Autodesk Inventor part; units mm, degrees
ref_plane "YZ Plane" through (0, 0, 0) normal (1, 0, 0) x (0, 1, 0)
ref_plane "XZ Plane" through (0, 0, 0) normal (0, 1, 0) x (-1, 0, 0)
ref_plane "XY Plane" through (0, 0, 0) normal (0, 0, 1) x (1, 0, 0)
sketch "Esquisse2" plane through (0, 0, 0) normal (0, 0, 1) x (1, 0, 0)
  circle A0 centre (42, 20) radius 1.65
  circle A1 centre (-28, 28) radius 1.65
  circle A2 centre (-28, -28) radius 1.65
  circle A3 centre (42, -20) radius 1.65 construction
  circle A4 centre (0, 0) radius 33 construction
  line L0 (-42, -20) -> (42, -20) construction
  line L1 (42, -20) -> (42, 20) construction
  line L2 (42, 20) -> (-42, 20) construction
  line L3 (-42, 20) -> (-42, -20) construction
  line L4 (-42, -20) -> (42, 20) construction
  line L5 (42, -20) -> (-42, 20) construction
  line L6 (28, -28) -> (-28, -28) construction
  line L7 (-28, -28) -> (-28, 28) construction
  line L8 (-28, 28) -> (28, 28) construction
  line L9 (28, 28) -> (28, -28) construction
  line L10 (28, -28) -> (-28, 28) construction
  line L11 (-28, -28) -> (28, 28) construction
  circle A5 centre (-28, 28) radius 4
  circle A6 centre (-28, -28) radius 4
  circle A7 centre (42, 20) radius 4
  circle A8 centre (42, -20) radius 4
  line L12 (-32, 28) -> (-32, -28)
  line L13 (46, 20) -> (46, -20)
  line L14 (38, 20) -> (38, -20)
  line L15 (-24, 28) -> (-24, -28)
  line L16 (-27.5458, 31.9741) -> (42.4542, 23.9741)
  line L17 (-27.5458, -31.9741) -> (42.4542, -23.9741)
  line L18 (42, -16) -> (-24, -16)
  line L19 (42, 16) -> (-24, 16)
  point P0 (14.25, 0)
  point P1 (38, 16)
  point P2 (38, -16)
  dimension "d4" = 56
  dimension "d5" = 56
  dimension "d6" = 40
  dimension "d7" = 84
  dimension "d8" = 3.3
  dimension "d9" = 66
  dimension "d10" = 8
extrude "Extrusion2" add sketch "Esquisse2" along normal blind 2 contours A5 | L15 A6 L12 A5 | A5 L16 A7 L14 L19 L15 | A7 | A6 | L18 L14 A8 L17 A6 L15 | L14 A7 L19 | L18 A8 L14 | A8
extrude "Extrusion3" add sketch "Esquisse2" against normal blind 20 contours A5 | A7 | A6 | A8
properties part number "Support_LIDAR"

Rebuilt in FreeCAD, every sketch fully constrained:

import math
import FreeCAD as App
import Part
import Sketcher

doc = App.newDocument("Part")
body = doc.addObject("PartDesign::Body", "Body")

# Sketch on XY plane
sketch1 = body.newObject("Sketcher::SketchObject", "Sketch")
sketch1.AttachmentSupport = (doc.getObject("XY_Plane"), [""])
sketch1.MapMode = "FlatFace"
sketch1.addGeometry([
    Part.ArcOfCircle(Part.Circle(App.Vector(-28, 28, 0), App.Vector(0, 0, 1), 4), math.radians(83.479954), math.radians(180)),  # 0
    Part.LineSegment(App.Vector(-32, 28, 0), App.Vector(-32, -28, 0)),  # 1
    Part.ArcOfCircle(Part.Circle(App.Vector(-28, -28, 0), App.Vector(0, 0, 1), 4), math.radians(180), math.radians(276.520046)),  # 2
    Part.LineSegment(App.Vector(-27.5458, -31.9741, 0), App.Vector(42.4542, -23.9741, 0)),  # 3
    Part.ArcOfCircle(Part.Circle(App.Vector(42, -20, 0), App.Vector(0, 0, 1), 4), math.radians(-83.479954), math.radians(90)),  # 4
    Part.LineSegment(App.Vector(42, -16, 0), App.Vector(-24, -16, 0)),  # 5
    Part.LineSegment(App.Vector(-24, -16, 0), App.Vector(-24, 16, 0)),  # 6
    Part.LineSegment(App.Vector(-24, 16, 0), App.Vector(42, 16, 0)),  # 7
    Part.ArcOfCircle(Part.Circle(App.Vector(42, 20, 0), App.Vector(0, 0, 1), 4), math.radians(-90), math.radians(83.479954)),  # 8
    Part.LineSegment(App.Vector(42.4542, 23.9741, 0), App.Vector(-27.5458, 31.9741, 0)),  # 9
    Part.Circle(App.Vector(-28, 28, 0), App.Vector(0, 0, 1), 1.65),  # 10
    Part.Circle(App.Vector(-28, -28, 0), App.Vector(0, 0, 1), 1.65),  # 11
    Part.Circle(App.Vector(42, 20, 0), App.Vector(0, 0, 1), 1.65),  # 12
], False)
sketch1.addConstraint([
    Sketcher.Constraint("Tangent", 0, 2, 1, 1),
    Sketcher.Constraint("Tangent", 1, 2, 2, 1),
    Sketcher.Constraint("Tangent", 2, 2, 3, 1),
    Sketcher.Constraint("Tangent", 3, 2, 4, 1),
    Sketcher.Constraint("Tangent", 4, 2, 5, 1),
    Sketcher.Constraint("Coincident", 5, 2, 6, 1),
    Sketcher.Constraint("Coincident", 6, 2, 7, 1),
    Sketcher.Constraint("Tangent", 7, 2, 8, 1),
    Sketcher.Constraint("Tangent", 8, 2, 9, 1),
    Sketcher.Constraint("Tangent", 9, 2, 0, 1),
    Sketcher.Constraint("Vertical", 1),
    Sketcher.Constraint("Horizontal", 5),
    Sketcher.Constraint("Vertical", 6),
    Sketcher.Constraint("Horizontal", 7),
    Sketcher.Constraint("Coincident", 10, 3, 0, 3),
    Sketcher.Constraint("Coincident", 11, 3, 2, 3),
    Sketcher.Constraint("Coincident", 12, 3, 8, 3),
    Sketcher.Constraint("Equal", 0, 2),
    Sketcher.Constraint("Equal", 2, 4),
    Sketcher.Constraint("Equal", 4, 8),
    Sketcher.Constraint("Equal", 10, 11),
    Sketcher.Constraint("Equal", 11, 12),
    Sketcher.Constraint("Symmetric", 4, 3, 8, 3, -1),
    Sketcher.Constraint("Vertical", 3, 2, 8, 2),
    Sketcher.Constraint("Radius", 0, 4.0),
    Sketcher.Constraint("Diameter", 10, 3.3),
    Sketcher.Constraint("DistanceX", 5, 2, 5, 1, 66.0),
    Sketcher.Constraint("DistanceY", 1, 2, 1, 1, 56.0),
    Sketcher.Constraint("DistanceY", 2, 3, 4, 3, 8.0),
    Sketcher.Constraint("DistanceX", 1, 2, 5, 2, 8.0),
    Sketcher.Constraint("DistanceX", 0, 3, -1, 1, 28.0),
])
pad1 = body.newObject("PartDesign::Pad", "Pad")
pad1.Profile = sketch1
pad1.Length = 2

# Sketch on XY plane
sketch2 = body.newObject("Sketcher::SketchObject", "Sketch001")
sketch2.AttachmentSupport = (doc.getObject("XY_Plane"), [""])
sketch2.MapMode = "FlatFace"
sketch2.addGeometry([
    Part.Circle(App.Vector(-28, 28, 0), App.Vector(0, 0, 1), 4),  # 0
    Part.Circle(App.Vector(-28, 28, 0), App.Vector(0, 0, 1), 1.65),  # 1
    Part.Circle(App.Vector(42, 20, 0), App.Vector(0, 0, 1), 4),  # 2
    Part.Circle(App.Vector(42, 20, 0), App.Vector(0, 0, 1), 1.65),  # 3
    Part.Circle(App.Vector(-28, -28, 0), App.Vector(0, 0, 1), 4),  # 4
    Part.Circle(App.Vector(-28, -28, 0), App.Vector(0, 0, 1), 1.65),  # 5
    Part.Circle(App.Vector(42, -20, 0), App.Vector(0, 0, 1), 4),  # 6
], False)
sketch2.addConstraint([
    Sketcher.Constraint("Coincident", 1, 3, 0, 3),
    Sketcher.Constraint("Coincident", 3, 3, 2, 3),
    Sketcher.Constraint("Coincident", 5, 3, 4, 3),
    Sketcher.Constraint("Equal", 0, 2),
    Sketcher.Constraint("Equal", 1, 3),
    Sketcher.Constraint("Equal", 2, 4),
    Sketcher.Constraint("Equal", 3, 5),
    Sketcher.Constraint("Equal", 4, 6),
    Sketcher.Constraint("Symmetric", 0, 3, 4, 3, -1),
    Sketcher.Constraint("Symmetric", 2, 3, 6, 3, -1),
    Sketcher.Constraint("Diameter", 0, 8.0),
    Sketcher.Constraint("Diameter", 1, 3.3),
    Sketcher.Constraint("DistanceY", 2, 3, 0, 3, 8.0),
    Sketcher.Constraint("DistanceY", 4, 3, 0, 3, 56.0),
    Sketcher.Constraint("DistanceX", 0, 3, -1, 1, 28.0),
    Sketcher.Constraint("DistanceX", -1, 1, 2, 3, 42.0),
])
pad2 = body.newObject("PartDesign::Pad", "Pad001")
pad2.Profile = sketch2
pad2.Length = 20
pad2.Reversed = True

doc.recompute()
